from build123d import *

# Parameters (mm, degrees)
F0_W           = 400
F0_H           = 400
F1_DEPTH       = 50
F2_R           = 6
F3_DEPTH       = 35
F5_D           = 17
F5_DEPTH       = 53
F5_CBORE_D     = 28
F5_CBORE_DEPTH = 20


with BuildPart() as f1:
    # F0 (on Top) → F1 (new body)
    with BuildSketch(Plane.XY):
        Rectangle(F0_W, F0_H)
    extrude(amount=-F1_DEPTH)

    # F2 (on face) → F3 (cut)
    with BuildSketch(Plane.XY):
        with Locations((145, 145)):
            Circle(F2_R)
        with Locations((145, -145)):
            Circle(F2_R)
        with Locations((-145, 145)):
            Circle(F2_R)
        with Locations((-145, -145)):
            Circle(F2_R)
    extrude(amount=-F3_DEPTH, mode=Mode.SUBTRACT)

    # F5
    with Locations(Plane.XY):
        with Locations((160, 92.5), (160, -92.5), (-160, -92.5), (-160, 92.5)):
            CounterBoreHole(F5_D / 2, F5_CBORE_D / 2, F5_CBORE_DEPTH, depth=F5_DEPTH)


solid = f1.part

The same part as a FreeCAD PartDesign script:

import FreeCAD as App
import Part
import Sketcher


def add_polygon(sketch, points):
    """Adds a closed chain of lines whose ends are joined by coincident constraints."""
    first, n = sketch.GeometryCount, len(points)
    for a, b in zip(points, points[1:] + points[:1]):
        sketch.addGeometry(Part.LineSegment(App.Vector(*a, 0), App.Vector(*b, 0)), False)
    for i in range(n):
        sketch.addConstraint(Sketcher.Constraint("Coincident", first + i, 2, first + (i + 1) % n, 1))

doc = App.newDocument("Part")
body = doc.addObject("PartDesign::Body", "Body")

sketch1 = body.newObject("Sketcher::SketchObject", "Sketch")
sketch1.AttachmentSupport = (doc.getObject("XY_Plane"), [""])
sketch1.MapMode = "FlatFace"
add_polygon(sketch1, [(-200, 200), (-200, -200), (200, -200), (200, 200)])
sketch1.addConstraint(Sketcher.Constraint("Vertical", 0))
sketch1.addConstraint(Sketcher.Constraint("Horizontal", 1))
sketch1.addConstraint(Sketcher.Constraint("Vertical", 2))
sketch1.addConstraint(Sketcher.Constraint("Horizontal", 3))
sketch1.addConstraint(Sketcher.Constraint("Symmetric", 0, 2, 2, 2, -1, 1))
sketch1.addConstraint(Sketcher.Constraint("Equal", 3, 0))
sketch1.addConstraint(Sketcher.Constraint("DistanceX", 1, 1, 1, 2, 400.0))
pad1 = body.newObject("PartDesign::Pad", "Pad")
pad1.Profile = sketch1
pad1.Length = 50
pad1.Reversed = True

sketch2 = body.newObject("Sketcher::SketchObject", "Sketch001")
sketch2.AttachmentSupport = (doc.getObject("XY_Plane"), [""])
sketch2.MapMode = "FlatFace"
sketch2.addGeometry(Part.Circle(App.Vector(145, 145, 0), App.Vector(0, 0, 1), 6), False)
sketch2.addGeometry(Part.Circle(App.Vector(145, -145, 0), App.Vector(0, 0, 1), 6), False)
sketch2.addGeometry(Part.Circle(App.Vector(-145, 145, 0), App.Vector(0, 0, 1), 6), False)
sketch2.addGeometry(Part.Circle(App.Vector(-145, -145, 0), App.Vector(0, 0, 1), 6), False)
sketch2.addConstraint(Sketcher.Constraint("Equal", 0, 1))
sketch2.addConstraint(Sketcher.Constraint("Equal", 1, 2))
sketch2.addConstraint(Sketcher.Constraint("Equal", 2, 3))
sketch2.addConstraint(Sketcher.Constraint("Symmetric", 1, 3, 2, 3, -1, 1))
sketch2.addConstraint(Sketcher.Constraint("Symmetric", 0, 3, 3, 3, -1, 1))
sketch2.addConstraint(Sketcher.Constraint("Symmetric", 0, 3, 2, 3, -2))
sketch2.addConstraint(Sketcher.Constraint("Diameter", 0, 12.0))
sketch2.addConstraint(Sketcher.Constraint("DistanceX", -1, 1, 0, 3, 145.0))
sketch2.addConstraint(Sketcher.Constraint("DistanceY", -1, 1, 0, 3, 145.0))
pocket1 = body.newObject("PartDesign::Pocket", "Pocket")
pocket1.Profile = sketch2
pocket1.Length = 35

sketch3 = body.newObject("Sketcher::SketchObject", "Sketch002")
sketch3.AttachmentSupport = (doc.getObject("XY_Plane"), [""])
sketch3.MapMode = "FlatFace"
sketch3.addGeometry(Part.Circle(App.Vector(160, 92, 0), App.Vector(0, 0, 1), 8), False)
sketch3.addGeometry(Part.Circle(App.Vector(160, -92, 0), App.Vector(0, 0, 1), 8), False)
sketch3.addGeometry(Part.Circle(App.Vector(-160, -92, 0), App.Vector(0, 0, 1), 8), False)
sketch3.addGeometry(Part.Circle(App.Vector(-160, 92, 0), App.Vector(0, 0, 1), 8), False)
sketch3.addConstraint(Sketcher.Constraint("Equal", 0, 1))
sketch3.addConstraint(Sketcher.Constraint("Equal", 1, 2))
sketch3.addConstraint(Sketcher.Constraint("Equal", 2, 3))
sketch3.addConstraint(Sketcher.Constraint("Symmetric", 0, 3, 2, 3, -1, 1))
sketch3.addConstraint(Sketcher.Constraint("Symmetric", 1, 3, 3, 3, -1, 1))
sketch3.addConstraint(Sketcher.Constraint("Symmetric", 1, 3, 2, 3, -2))
sketch3.addConstraint(Sketcher.Constraint("Diameter", 0, 17.0))
sketch3.addConstraint(Sketcher.Constraint("DistanceX", -1, 1, 0, 3, 160.0))
sketch3.addConstraint(Sketcher.Constraint("DistanceY", 1, 3, 0, 3, 185.0))
doc.recompute()
hole = body.newObject("PartDesign::Hole", "Hole")
hole.Profile = sketch3
hole.ThreadType = "None"
hole.Diameter = 17
hole.DepthType = "Dimension"
hole.Depth = 53
hole.DrillPoint = "Flat"
hole.HoleCutType = "Counterbore"
hole.HoleCutDiameter = 28
hole.HoleCutDepth = 20

doc.recompute()
